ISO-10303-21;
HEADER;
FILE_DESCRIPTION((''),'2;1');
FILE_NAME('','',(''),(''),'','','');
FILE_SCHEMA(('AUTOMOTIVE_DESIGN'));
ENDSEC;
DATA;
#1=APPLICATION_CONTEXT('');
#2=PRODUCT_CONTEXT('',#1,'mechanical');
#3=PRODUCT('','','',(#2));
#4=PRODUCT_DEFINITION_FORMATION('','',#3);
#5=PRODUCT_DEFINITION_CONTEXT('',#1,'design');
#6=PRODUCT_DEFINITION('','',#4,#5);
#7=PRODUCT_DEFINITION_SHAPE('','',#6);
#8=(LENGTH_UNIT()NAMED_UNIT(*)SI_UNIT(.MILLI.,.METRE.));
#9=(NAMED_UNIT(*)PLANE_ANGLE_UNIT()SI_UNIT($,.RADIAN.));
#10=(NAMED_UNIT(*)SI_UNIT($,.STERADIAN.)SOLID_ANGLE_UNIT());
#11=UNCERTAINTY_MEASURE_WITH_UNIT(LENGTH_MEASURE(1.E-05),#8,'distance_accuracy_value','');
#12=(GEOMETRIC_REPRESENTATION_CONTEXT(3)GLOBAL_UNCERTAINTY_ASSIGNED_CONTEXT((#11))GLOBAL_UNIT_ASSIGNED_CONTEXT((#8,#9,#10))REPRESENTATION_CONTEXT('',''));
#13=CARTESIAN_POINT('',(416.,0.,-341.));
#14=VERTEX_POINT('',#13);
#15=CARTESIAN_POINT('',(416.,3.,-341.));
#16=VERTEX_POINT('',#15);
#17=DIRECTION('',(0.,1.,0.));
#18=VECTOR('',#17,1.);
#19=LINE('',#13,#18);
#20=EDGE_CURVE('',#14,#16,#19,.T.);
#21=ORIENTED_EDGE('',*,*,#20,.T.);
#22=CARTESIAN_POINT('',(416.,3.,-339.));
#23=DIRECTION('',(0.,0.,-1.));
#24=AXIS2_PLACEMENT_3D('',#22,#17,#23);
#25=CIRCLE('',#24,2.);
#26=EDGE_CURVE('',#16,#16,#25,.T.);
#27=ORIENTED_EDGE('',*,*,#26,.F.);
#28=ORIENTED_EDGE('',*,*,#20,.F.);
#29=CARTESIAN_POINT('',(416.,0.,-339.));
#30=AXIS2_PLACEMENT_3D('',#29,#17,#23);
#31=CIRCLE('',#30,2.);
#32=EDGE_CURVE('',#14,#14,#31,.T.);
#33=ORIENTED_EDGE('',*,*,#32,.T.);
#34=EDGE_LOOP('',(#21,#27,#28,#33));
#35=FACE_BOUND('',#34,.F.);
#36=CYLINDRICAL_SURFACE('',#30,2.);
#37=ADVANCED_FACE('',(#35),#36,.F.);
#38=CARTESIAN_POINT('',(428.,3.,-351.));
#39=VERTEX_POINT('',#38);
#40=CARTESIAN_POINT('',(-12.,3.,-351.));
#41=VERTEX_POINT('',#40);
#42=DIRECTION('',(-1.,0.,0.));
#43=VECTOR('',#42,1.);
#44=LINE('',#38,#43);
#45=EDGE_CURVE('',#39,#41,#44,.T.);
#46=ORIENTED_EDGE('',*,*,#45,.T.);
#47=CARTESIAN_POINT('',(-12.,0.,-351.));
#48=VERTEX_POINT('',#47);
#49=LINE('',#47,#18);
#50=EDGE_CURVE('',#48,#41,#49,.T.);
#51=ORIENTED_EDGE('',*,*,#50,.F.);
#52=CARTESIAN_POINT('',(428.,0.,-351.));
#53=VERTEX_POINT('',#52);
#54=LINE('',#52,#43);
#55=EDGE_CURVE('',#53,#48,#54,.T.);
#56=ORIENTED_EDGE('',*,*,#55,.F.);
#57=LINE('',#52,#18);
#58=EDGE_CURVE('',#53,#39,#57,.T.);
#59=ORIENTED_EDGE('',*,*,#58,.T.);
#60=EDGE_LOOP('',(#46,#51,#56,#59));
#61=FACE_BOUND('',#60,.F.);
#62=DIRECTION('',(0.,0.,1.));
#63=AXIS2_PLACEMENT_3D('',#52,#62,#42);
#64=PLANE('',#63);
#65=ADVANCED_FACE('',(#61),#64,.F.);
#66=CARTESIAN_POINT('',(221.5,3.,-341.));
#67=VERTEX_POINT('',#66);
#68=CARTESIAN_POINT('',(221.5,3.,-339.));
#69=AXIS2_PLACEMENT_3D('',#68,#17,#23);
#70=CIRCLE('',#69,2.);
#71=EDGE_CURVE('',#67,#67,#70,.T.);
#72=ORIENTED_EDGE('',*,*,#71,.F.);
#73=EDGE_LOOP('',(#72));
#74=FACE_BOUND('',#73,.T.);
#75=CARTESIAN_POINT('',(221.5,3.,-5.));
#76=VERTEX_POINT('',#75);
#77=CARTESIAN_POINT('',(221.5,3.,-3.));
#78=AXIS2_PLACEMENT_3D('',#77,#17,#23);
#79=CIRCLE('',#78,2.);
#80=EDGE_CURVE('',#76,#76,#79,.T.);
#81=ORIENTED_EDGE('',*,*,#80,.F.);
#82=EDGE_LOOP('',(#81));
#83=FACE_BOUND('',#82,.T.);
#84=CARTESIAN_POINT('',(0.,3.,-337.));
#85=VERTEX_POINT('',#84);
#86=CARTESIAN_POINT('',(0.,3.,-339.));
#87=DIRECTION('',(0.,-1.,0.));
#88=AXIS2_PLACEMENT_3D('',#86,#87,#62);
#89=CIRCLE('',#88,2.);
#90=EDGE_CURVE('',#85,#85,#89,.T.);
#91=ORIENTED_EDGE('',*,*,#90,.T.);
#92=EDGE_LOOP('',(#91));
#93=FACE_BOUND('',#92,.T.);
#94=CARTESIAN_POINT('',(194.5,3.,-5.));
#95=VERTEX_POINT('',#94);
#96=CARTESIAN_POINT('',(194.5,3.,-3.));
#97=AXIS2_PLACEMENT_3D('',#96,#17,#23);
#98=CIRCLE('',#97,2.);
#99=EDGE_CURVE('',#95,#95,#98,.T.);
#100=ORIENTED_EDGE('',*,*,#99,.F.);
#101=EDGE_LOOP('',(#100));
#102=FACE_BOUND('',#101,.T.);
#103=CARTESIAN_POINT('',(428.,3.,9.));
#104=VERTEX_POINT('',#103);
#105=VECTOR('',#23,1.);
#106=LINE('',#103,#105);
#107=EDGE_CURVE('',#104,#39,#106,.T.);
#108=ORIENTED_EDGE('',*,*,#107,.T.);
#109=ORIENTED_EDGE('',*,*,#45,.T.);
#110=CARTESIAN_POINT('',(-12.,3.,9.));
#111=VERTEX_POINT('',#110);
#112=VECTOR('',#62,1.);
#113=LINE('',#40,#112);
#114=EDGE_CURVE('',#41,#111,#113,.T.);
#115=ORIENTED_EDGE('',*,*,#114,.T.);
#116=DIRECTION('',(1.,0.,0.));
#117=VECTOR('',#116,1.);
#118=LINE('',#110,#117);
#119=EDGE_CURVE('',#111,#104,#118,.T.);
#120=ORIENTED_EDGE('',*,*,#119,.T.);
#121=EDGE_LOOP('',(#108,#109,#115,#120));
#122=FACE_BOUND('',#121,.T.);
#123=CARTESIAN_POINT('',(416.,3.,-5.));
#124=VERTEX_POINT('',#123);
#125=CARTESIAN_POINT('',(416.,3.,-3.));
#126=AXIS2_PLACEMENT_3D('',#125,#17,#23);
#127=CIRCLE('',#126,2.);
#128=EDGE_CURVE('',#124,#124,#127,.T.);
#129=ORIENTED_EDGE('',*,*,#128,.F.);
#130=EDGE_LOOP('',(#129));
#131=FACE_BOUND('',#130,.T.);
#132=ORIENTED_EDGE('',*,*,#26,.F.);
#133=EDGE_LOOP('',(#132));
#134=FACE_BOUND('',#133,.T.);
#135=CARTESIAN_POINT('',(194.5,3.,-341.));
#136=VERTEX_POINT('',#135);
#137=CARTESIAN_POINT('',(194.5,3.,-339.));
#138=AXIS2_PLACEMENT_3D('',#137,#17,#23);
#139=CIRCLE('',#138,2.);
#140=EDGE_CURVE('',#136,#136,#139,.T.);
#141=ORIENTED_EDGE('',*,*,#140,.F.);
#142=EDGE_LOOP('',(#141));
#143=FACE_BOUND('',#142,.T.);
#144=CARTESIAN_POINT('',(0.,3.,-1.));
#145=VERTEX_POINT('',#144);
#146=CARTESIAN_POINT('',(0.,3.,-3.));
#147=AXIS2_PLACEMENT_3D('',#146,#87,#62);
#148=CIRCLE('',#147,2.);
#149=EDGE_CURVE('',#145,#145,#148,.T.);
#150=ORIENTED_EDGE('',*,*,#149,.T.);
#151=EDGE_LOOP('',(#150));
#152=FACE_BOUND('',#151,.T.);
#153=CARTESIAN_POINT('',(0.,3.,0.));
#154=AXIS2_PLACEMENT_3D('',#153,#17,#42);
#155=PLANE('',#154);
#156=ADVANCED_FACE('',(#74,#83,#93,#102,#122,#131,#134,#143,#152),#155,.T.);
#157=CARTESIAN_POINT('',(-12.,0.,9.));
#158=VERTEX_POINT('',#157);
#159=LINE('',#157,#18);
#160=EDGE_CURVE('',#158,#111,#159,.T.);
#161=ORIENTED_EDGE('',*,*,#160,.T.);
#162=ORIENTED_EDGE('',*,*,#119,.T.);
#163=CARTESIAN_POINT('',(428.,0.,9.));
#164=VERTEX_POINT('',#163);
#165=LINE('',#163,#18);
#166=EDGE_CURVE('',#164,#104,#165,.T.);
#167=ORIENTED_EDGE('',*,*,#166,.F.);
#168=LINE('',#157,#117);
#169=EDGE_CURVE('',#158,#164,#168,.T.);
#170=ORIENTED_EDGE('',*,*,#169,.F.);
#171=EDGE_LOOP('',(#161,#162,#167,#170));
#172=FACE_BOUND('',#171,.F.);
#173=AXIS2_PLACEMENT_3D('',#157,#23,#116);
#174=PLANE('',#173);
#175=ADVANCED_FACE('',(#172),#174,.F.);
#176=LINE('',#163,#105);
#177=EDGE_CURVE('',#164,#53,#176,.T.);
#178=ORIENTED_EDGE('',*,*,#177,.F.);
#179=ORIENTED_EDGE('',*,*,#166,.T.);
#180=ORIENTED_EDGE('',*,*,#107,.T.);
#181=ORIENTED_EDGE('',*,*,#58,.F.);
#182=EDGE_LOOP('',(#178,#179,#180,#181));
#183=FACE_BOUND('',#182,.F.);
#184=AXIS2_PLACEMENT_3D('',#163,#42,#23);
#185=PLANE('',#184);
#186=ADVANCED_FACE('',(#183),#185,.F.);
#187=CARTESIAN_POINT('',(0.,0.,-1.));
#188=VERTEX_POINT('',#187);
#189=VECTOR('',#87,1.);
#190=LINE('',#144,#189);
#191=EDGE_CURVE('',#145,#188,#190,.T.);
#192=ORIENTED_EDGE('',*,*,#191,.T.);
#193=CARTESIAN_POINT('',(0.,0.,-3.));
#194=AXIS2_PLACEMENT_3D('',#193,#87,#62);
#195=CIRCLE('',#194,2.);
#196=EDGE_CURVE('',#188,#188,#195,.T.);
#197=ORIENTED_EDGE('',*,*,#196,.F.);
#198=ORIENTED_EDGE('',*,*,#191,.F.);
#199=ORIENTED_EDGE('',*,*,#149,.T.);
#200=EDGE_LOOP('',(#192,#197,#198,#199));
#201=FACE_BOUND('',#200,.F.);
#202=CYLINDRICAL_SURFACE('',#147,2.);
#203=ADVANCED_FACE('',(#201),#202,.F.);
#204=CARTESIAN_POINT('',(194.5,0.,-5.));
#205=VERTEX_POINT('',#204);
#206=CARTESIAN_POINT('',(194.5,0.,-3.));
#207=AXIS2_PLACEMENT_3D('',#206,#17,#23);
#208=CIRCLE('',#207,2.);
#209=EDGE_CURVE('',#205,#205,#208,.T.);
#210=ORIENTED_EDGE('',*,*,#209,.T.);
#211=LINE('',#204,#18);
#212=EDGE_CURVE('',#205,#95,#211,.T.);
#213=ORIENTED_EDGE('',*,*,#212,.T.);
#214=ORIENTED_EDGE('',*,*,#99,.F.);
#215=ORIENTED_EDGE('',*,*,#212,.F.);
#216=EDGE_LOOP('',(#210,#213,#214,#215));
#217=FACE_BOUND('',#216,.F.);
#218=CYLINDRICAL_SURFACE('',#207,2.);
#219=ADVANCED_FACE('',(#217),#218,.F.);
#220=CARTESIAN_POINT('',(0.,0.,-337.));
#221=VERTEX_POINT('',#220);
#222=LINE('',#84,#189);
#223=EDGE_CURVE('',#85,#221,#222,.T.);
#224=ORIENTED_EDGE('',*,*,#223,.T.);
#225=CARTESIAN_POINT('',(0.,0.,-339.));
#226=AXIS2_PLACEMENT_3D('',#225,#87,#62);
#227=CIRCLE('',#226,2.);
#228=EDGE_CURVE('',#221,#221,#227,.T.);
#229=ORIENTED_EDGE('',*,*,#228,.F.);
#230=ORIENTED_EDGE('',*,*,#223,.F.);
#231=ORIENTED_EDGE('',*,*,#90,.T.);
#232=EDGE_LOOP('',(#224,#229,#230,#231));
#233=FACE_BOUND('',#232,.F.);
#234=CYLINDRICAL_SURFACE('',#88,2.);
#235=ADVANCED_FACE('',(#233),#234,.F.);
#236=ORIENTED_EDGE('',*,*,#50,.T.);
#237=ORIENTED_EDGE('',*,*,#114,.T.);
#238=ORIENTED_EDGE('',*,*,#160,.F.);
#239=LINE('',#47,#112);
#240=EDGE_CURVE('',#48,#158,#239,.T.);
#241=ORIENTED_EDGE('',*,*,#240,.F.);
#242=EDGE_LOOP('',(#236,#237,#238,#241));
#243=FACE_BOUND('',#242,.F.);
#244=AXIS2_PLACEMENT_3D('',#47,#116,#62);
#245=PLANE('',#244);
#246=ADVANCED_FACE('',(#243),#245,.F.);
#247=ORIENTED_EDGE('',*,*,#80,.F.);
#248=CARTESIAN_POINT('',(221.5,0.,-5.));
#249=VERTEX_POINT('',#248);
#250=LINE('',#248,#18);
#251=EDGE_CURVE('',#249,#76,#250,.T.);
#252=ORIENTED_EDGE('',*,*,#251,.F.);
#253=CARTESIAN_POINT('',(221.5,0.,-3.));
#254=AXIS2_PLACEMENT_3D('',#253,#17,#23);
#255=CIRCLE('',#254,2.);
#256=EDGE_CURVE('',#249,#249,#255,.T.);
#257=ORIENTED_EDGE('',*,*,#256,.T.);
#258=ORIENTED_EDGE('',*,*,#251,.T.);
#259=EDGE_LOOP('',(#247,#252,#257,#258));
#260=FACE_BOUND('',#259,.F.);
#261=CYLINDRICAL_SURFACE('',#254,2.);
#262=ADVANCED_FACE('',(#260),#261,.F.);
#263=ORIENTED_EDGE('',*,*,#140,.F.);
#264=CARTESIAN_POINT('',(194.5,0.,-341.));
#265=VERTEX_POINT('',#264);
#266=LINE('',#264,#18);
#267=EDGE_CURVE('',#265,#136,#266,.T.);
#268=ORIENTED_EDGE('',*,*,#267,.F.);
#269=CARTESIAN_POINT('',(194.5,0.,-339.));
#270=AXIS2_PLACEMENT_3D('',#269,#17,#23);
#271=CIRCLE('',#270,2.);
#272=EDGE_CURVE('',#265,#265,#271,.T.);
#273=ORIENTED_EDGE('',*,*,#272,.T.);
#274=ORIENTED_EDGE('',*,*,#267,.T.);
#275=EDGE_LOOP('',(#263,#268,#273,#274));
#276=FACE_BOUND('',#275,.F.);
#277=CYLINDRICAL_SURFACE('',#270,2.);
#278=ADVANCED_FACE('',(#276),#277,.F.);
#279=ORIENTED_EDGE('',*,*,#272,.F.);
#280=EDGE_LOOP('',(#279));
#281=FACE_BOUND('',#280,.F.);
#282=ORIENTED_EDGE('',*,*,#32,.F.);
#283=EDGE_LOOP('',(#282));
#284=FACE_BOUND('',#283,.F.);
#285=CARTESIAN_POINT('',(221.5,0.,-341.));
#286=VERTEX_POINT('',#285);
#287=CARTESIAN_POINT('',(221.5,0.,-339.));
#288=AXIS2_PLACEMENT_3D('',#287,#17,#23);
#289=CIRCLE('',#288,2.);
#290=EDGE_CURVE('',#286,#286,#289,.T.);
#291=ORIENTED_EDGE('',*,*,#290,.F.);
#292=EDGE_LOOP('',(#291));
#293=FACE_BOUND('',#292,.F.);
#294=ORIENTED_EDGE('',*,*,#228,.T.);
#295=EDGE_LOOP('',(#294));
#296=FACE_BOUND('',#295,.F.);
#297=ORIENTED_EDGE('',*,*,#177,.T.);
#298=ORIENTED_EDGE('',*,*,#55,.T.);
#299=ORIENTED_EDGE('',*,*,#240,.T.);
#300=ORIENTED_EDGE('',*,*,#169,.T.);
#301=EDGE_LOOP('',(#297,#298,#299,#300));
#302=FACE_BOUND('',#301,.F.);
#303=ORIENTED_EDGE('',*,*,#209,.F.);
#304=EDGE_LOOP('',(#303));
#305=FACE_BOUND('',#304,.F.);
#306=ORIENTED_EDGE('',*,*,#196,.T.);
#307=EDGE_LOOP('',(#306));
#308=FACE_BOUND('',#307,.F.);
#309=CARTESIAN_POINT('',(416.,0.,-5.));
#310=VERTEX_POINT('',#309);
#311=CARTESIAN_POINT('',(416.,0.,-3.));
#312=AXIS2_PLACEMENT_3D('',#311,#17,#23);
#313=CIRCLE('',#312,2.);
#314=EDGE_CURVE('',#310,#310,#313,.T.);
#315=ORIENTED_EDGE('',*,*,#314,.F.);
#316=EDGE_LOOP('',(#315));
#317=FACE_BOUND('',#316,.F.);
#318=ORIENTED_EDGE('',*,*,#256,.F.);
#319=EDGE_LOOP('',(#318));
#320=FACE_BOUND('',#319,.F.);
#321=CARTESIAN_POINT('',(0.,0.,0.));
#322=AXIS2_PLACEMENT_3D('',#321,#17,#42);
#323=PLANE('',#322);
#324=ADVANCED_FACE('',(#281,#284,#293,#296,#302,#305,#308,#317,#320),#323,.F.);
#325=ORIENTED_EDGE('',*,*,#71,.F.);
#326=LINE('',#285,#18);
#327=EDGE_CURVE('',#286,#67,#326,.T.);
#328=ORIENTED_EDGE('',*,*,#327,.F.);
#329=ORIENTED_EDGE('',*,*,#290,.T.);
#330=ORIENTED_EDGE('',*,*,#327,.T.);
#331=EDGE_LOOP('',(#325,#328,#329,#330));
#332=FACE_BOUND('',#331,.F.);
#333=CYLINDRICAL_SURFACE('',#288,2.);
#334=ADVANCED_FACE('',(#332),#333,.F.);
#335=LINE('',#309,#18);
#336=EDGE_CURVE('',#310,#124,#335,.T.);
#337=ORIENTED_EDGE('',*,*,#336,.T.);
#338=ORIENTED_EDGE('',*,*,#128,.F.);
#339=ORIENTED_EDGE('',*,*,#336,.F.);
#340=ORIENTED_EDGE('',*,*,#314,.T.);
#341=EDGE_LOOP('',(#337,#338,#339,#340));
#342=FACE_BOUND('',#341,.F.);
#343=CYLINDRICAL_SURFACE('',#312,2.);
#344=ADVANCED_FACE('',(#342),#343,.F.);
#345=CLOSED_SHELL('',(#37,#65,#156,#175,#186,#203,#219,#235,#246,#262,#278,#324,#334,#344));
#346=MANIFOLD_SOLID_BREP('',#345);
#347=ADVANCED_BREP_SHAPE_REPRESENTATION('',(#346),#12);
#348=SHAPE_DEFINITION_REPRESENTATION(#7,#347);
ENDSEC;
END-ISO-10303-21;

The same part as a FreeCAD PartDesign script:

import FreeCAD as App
import Part
import Sketcher
from FreeCAD import Vector


def add_polygon(sketch, points):
    """Adds a closed chain of lines whose ends are joined by coincident constraints."""
    first, n = sketch.GeometryCount, len(points)
    for a, b in zip(points, points[1:] + points[:1]):
        sketch.addGeometry(Part.LineSegment(App.Vector(*a, 0), App.Vector(*b, 0)), False)
    for i in range(n):
        sketch.addConstraint(Sketcher.Constraint("Coincident", first + i, 2, first + (i + 1) % n, 1))

doc = App.newDocument("Part")
body = doc.addObject("PartDesign::Body", "Body")

sketch1 = body.newObject("Sketcher::SketchObject", "Sketch")
sketch1.AttachmentSupport = (doc.getObject("XZ_Plane"), [""])
sketch1.MapMode = "FlatFace"
add_polygon(sketch1, [(-12, -351), (-12, 9), (428, 9), (428, -351)])
sketch1.addConstraint([
    Sketcher.Constraint("Vertical", 0),
    Sketcher.Constraint("Horizontal", 1),
    Sketcher.Constraint("Vertical", 2),
    Sketcher.Constraint("Horizontal", 3),
    Sketcher.Constraint("DistanceX", 1, 1, 1, 2, 440.0),
    Sketcher.Constraint("DistanceY", 0, 1, 0, 2, 360.0),
    Sketcher.Constraint("DistanceX", 0, 2, -1, 1, 12.0),
    Sketcher.Constraint("DistanceY", -1, 1, 0, 2, 9.0),
])
pad1 = body.newObject("PartDesign::Pad", "Pad")
pad1.Profile = sketch1
pad1.Length = 3
pad1.Reversed = True

sketch2 = body.newObject("Sketcher::SketchObject", "Sketch001")
sketch2.AttachmentSupport = (doc.getObject("XZ_Plane"), [""])
sketch2.MapMode = "FlatFace"
sketch2.AttachmentOffset = App.Placement(Vector(0, 0, -3), App.Rotation())
sketch2.addGeometry(Part.Circle(Vector(0, -3, 0), Vector(0, 0, 1), 2), False)
sketch2.addConstraint([
    Sketcher.Constraint("PointOnObject", 0, 3, -2),
    Sketcher.Constraint("Diameter", 0, 4.0),
    Sketcher.Constraint("DistanceY", 0, 3, -1, 1, 3.0),
])
doc.recompute()
hole = body.newObject("PartDesign::Hole", "Hole")
hole.Profile = sketch2
hole.ThreadType = "None"
hole.Diameter = 4
hole.DepthType = "ThroughAll"
hole.Reversed = True

sketch3 = body.newObject("Sketcher::SketchObject", "Sketch002")
sketch3.AttachmentSupport = (doc.getObject("XZ_Plane"), [""])
sketch3.MapMode = "FlatFace"
sketch3.AttachmentOffset = App.Placement(Vector(0, 0, -3), App.Rotation())
sketch3.addGeometry(Part.Circle(Vector(0, -339, 0), Vector(0, 0, 1), 2), False)
sketch3.addConstraint([
    Sketcher.Constraint("PointOnObject", 0, 3, -2),
    Sketcher.Constraint("Diameter", 0, 4.0),
    Sketcher.Constraint("DistanceY", 0, 3, -1, 1, 339.0),
])
doc.recompute()
hole2 = body.newObject("PartDesign::Hole", "Hole001")
hole2.Profile = sketch3
hole2.ThreadType = "None"
hole2.Diameter = 4
hole2.DepthType = "ThroughAll"
hole2.Reversed = True

sketch4 = body.newObject("Sketcher::SketchObject", "Sketch003")
sketch4.AttachmentSupport = (doc.getObject("XZ_Plane"), [""])
sketch4.MapMode = "FlatFace"
sketch4.addGeometry(Part.Circle(Vector(416, -3, 0), Vector(0, 0, 1), 2), False)
sketch4.addConstraint([
    Sketcher.Constraint("Diameter", 0, 4.0),
    Sketcher.Constraint("DistanceX", -1, 1, 0, 3, 416.0),
    Sketcher.Constraint("DistanceY", 0, 3, -1, 1, 3.0),
])
doc.recompute()
hole3 = body.newObject("PartDesign::Hole", "Hole002")
hole3.Profile = sketch4
hole3.ThreadType = "None"
hole3.Diameter = 4
hole3.DepthType = "ThroughAll"

sketch5 = body.newObject("Sketcher::SketchObject", "Sketch004")
sketch5.AttachmentSupport = (doc.getObject("XZ_Plane"), [""])
sketch5.MapMode = "FlatFace"
sketch5.addGeometry(Part.Circle(Vector(416, -339, 0), Vector(0, 0, 1), 2), False)
sketch5.addConstraint([
    Sketcher.Constraint("Diameter", 0, 4.0),
    Sketcher.Constraint("DistanceX", -1, 1, 0, 3, 416.0),
    Sketcher.Constraint("DistanceY", 0, 3, -1, 1, 339.0),
])
doc.recompute()
hole4 = body.newObject("PartDesign::Hole", "Hole003")
hole4.Profile = sketch5
hole4.ThreadType = "None"
hole4.Diameter = 4
hole4.DepthType = "ThroughAll"

sketch6 = body.newObject("Sketcher::SketchObject", "Sketch005")
sketch6.AttachmentSupport = (doc.getObject("XZ_Plane"), [""])
sketch6.MapMode = "FlatFace"
sketch6.addGeometry(Part.Circle(Vector(194.5, -339, 0), Vector(0, 0, 1), 2), False)
sketch6.addConstraint([
    Sketcher.Constraint("Diameter", 0, 4.0),
    Sketcher.Constraint("DistanceY", 0, 3, -1, 1, 339.0),
    Sketcher.Constraint("DistanceX", -1, 1, 0, 3, 194.5),
])
doc.recompute()
hole5 = body.newObject("PartDesign::Hole", "Hole004")
hole5.Profile = sketch6
hole5.ThreadType = "None"
hole5.Diameter = 4
hole5.DepthType = "ThroughAll"

sketch7 = body.newObject("Sketcher::SketchObject", "Sketch006")
sketch7.AttachmentSupport = (doc.getObject("XZ_Plane"), [""])
sketch7.MapMode = "FlatFace"
sketch7.addGeometry(Part.Circle(Vector(221.5, -339, 0), Vector(0, 0, 1), 2), False)
sketch7.addConstraint([
    Sketcher.Constraint("Diameter", 0, 4.0),
    Sketcher.Constraint("DistanceY", 0, 3, -1, 1, 339.0),
    Sketcher.Constraint("DistanceX", -1, 1, 0, 3, 221.5),
])
doc.recompute()
hole6 = body.newObject("PartDesign::Hole", "Hole005")
hole6.Profile = sketch7
hole6.ThreadType = "None"
hole6.Diameter = 4
hole6.DepthType = "ThroughAll"

sketch8 = body.newObject("Sketcher::SketchObject", "Sketch007")
sketch8.AttachmentSupport = (doc.getObject("XZ_Plane"), [""])
sketch8.MapMode = "FlatFace"
sketch8.addGeometry(Part.Circle(Vector(194.5, -3, 0), Vector(0, 0, 1), 2), False)
sketch8.addConstraint([
    Sketcher.Constraint("Diameter", 0, 4.0),
    Sketcher.Constraint("DistanceY", 0, 3, -1, 1, 3.0),
    Sketcher.Constraint("DistanceX", -1, 1, 0, 3, 194.5),
])
doc.recompute()
hole7 = body.newObject("PartDesign::Hole", "Hole006")
hole7.Profile = sketch8
hole7.ThreadType = "None"
hole7.Diameter = 4
hole7.DepthType = "ThroughAll"

sketch9 = body.newObject("Sketcher::SketchObject", "Sketch008")
sketch9.AttachmentSupport = (doc.getObject("XZ_Plane"), [""])
sketch9.MapMode = "FlatFace"
sketch9.addGeometry(Part.Circle(Vector(221.5, -3, 0), Vector(0, 0, 1), 2), False)
sketch9.addConstraint([
    Sketcher.Constraint("Diameter", 0, 4.0),
    Sketcher.Constraint("DistanceY", 0, 3, -1, 1, 3.0),
    Sketcher.Constraint("DistanceX", -1, 1, 0, 3, 221.5),
])
doc.recompute()
hole8 = body.newObject("PartDesign::Hole", "Hole007")
hole8.Profile = sketch9
hole8.ThreadType = "None"
hole8.Diameter = 4
hole8.DepthType = "ThroughAll"

doc.recompute()
